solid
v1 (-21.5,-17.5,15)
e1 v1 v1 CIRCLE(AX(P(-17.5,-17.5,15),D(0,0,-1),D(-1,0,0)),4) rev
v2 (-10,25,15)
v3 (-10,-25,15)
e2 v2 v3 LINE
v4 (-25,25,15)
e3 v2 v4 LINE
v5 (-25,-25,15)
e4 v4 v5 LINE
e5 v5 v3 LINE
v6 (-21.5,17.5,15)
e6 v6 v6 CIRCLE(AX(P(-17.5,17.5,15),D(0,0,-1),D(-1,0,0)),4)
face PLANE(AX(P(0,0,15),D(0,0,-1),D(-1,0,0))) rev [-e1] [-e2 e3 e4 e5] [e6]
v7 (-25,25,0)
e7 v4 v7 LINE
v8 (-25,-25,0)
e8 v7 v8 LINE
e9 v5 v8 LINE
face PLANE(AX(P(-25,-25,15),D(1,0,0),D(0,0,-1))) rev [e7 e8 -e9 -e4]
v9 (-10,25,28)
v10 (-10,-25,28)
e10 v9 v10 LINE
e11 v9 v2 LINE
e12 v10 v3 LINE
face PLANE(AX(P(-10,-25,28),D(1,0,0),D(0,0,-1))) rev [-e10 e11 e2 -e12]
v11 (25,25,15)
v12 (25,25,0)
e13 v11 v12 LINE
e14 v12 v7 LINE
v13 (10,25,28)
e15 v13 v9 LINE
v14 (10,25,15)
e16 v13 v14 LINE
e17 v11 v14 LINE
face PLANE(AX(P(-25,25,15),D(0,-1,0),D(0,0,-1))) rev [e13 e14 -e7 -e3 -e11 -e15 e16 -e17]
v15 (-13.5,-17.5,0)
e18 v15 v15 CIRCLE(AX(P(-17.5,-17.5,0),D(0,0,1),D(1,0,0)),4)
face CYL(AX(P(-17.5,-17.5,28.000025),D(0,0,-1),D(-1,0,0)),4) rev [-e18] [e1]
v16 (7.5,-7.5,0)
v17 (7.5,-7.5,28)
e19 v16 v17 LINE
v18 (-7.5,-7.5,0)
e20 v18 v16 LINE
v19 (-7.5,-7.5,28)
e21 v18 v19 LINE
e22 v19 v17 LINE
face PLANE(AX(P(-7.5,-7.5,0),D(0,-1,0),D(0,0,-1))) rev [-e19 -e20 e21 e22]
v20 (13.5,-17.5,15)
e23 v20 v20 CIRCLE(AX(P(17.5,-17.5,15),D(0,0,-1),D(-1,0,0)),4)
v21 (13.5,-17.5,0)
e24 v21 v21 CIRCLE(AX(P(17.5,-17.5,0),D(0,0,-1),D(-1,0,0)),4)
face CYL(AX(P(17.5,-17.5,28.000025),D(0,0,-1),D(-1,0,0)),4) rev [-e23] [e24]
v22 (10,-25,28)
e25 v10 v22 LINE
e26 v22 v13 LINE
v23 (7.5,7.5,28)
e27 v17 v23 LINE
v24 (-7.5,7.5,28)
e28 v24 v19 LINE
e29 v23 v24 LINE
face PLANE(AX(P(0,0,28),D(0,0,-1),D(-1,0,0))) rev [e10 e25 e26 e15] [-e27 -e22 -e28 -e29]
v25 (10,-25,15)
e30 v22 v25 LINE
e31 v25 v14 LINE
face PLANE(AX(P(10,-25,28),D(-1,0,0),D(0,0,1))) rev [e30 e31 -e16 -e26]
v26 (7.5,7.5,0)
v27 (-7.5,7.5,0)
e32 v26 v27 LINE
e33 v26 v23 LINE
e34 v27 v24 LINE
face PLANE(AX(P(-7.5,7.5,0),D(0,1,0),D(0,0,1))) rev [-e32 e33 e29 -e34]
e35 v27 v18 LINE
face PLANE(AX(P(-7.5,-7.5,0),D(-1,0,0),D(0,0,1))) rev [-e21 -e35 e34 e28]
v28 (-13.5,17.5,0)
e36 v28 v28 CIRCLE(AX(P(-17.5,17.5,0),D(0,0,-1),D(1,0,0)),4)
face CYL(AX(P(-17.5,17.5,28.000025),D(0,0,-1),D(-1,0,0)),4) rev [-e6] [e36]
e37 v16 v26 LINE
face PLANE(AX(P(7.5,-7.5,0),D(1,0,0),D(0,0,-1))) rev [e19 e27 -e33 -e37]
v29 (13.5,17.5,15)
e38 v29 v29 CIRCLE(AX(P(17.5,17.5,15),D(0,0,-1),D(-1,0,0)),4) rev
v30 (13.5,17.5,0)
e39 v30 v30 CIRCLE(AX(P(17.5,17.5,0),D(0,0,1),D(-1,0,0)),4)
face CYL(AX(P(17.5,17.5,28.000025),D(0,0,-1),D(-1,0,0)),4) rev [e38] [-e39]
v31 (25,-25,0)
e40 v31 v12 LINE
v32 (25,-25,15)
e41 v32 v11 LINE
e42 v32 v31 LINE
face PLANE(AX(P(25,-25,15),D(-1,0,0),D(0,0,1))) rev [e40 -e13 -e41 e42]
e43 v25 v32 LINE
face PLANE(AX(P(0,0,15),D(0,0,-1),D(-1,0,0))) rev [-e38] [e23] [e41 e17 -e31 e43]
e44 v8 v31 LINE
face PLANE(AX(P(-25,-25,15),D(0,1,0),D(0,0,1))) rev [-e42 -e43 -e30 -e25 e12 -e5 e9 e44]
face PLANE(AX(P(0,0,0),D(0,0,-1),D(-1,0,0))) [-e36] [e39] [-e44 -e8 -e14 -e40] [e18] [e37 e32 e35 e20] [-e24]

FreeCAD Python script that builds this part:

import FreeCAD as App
import Part
import Sketcher
from FreeCAD import Vector

doc = App.newDocument("Part")
params = doc.addObject("Spreadsheet::Sheet", "Params")
for row, (alias, value) in enumerate([
    ("sketch1_width", "50 mm"),
    ("pad1_length", "15 mm"),
    ("sketch2_width", "20 mm"),
    ("sketch2_height", "50 mm"),
    ("pad2_length", "13 mm"),
    ("sketch3_width", "15 mm"),
    ("sketch4_diameter", "8 mm"),
    ("sketch5_diameter", "8 mm"),
], start=1):
    params.set(f"A{row}", alias)
    params.set(f"B{row}", "=" + value)
    params.setAlias(f"B{row}", alias)

body = doc.addObject("PartDesign::Body", "Body")

sketch1 = body.newObject("Sketcher::SketchObject", "Sketch")
sketch1.AttachmentSupport = (doc.getObject("XY_Plane"), [""])
sketch1.MapMode = "FlatFace"
sketch1.addGeometry(Part.LineSegment(Vector(-25, 25, 0), Vector(-25, -25, 0)), False)
sketch1.addGeometry(Part.LineSegment(Vector(-25, -25, 0), Vector(25, -25, 0)), False)
sketch1.addGeometry(Part.LineSegment(Vector(25, -25, 0), Vector(25, 25, 0)), False)
sketch1.addGeometry(Part.LineSegment(Vector(25, 25, 0), Vector(-25, 25, 0)), False)
sketch1.addConstraint(Sketcher.Constraint("Coincident", 0, 2, 1, 1))
sketch1.addConstraint(Sketcher.Constraint("Coincident", 1, 2, 2, 1))
sketch1.addConstraint(Sketcher.Constraint("Coincident", 2, 2, 3, 1))
sketch1.addConstraint(Sketcher.Constraint("Coincident", 3, 2, 0, 1))
sketch1.addConstraint(Sketcher.Constraint("Vertical", 0))
sketch1.addConstraint(Sketcher.Constraint("Horizontal", 1))
sketch1.addConstraint(Sketcher.Constraint("Vertical", 2))
sketch1.addConstraint(Sketcher.Constraint("Horizontal", 3))
sketch1.addConstraint(Sketcher.Constraint("Symmetric", 0, 2, 2, 2, -1, 1))
sketch1.addConstraint(Sketcher.Constraint("Equal", 3, 0))
sketch1.addConstraint(Sketcher.Constraint("DistanceX", 1, 1, 1, 2, 50.0))
sketch1.setExpression("Constraints[10]", "Params.sketch1_width")
pad1 = body.newObject("PartDesign::Pad", "Pad")
pad1.Profile = sketch1
pad1.setExpression("Length", "Params.pad1_length")

sketch2 = body.newObject("Sketcher::SketchObject", "Sketch001")
sketch2.AttachmentSupport = (doc.getObject("XY_Plane"), [""])
sketch2.MapMode = "FlatFace"
sketch2.AttachmentOffset = App.Placement(Vector(0, 0, 15), App.Rotation())
sketch2.addGeometry(Part.LineSegment(Vector(-10, 25, 0), Vector(-10, -25, 0)), False)
sketch2.addGeometry(Part.LineSegment(Vector(-10, -25, 0), Vector(10, -25, 0)), False)
sketch2.addGeometry(Part.LineSegment(Vector(10, -25, 0), Vector(10, 25, 0)), False)
sketch2.addGeometry(Part.LineSegment(Vector(10, 25, 0), Vector(-10, 25, 0)), False)
sketch2.addConstraint(Sketcher.Constraint("Coincident", 0, 2, 1, 1))
sketch2.addConstraint(Sketcher.Constraint("Coincident", 1, 2, 2, 1))
sketch2.addConstraint(Sketcher.Constraint("Coincident", 2, 2, 3, 1))
sketch2.addConstraint(Sketcher.Constraint("Coincident", 3, 2, 0, 1))
sketch2.addConstraint(Sketcher.Constraint("Vertical", 0))
sketch2.addConstraint(Sketcher.Constraint("Horizontal", 1))
sketch2.addConstraint(Sketcher.Constraint("Vertical", 2))
sketch2.addConstraint(Sketcher.Constraint("Horizontal", 3))
sketch2.addConstraint(Sketcher.Constraint("Symmetric", 0, 2, 2, 2, -1, 1))
sketch2.addConstraint(Sketcher.Constraint("DistanceX", 1, 1, 1, 2, 20.0))
sketch2.addConstraint(Sketcher.Constraint("DistanceY", 0, 2, 0, 1, 50.0))
sketch2.setExpression("Constraints[9]", "Params.sketch2_width")
sketch2.setExpression("Constraints[10]", "Params.sketch2_height")
pad2 = body.newObject("PartDesign::Pad", "Pad001")
pad2.Profile = sketch2
pad2.setExpression("Length", "Params.pad2_length")

sketch3 = body.newObject("Sketcher::SketchObject", "Sketch002")
sketch3.AttachmentSupport = (doc.getObject("XY_Plane"), [""])
sketch3.MapMode = "FlatFace"
sketch3.AttachmentOffset = App.Placement(Vector(0, 0, 28), App.Rotation())
sketch3.addGeometry(Part.LineSegment(Vector(-7.5, 7.5, 0), Vector(-7.5, -7.5, 0)), False)
sketch3.addGeometry(Part.LineSegment(Vector(-7.5, -7.5, 0), Vector(7.5, -7.5, 0)), False)
sketch3.addGeometry(Part.LineSegment(Vector(7.5, -7.5, 0), Vector(7.5, 7.5, 0)), False)
sketch3.addGeometry(Part.LineSegment(Vector(7.5, 7.5, 0), Vector(-7.5, 7.5, 0)), False)
sketch3.addConstraint(Sketcher.Constraint("Coincident", 0, 2, 1, 1))
sketch3.addConstraint(Sketcher.Constraint("Coincident", 1, 2, 2, 1))
sketch3.addConstraint(Sketcher.Constraint("Coincident", 2, 2, 3, 1))
sketch3.addConstraint(Sketcher.Constraint("Coincident", 3, 2, 0, 1))
sketch3.addConstraint(Sketcher.Constraint("Vertical", 0))
sketch3.addConstraint(Sketcher.Constraint("Horizontal", 1))
sketch3.addConstraint(Sketcher.Constraint("Vertical", 2))
sketch3.addConstraint(Sketcher.Constraint("Horizontal", 3))
sketch3.addConstraint(Sketcher.Constraint("Symmetric", 0, 2, 2, 2, -1, 1))
sketch3.addConstraint(Sketcher.Constraint("Equal", 3, 0))
sketch3.addConstraint(Sketcher.Constraint("DistanceX", 1, 1, 1, 2, 15.0))
sketch3.setExpression("Constraints[10]", "Params.sketch3_width")
pocket1 = body.newObject("PartDesign::Pocket", "Pocket")
pocket1.Profile = sketch3
pocket1.Type = "ThroughAll"

sketch4 = body.newObject("Sketcher::SketchObject", "Sketch003")
sketch4.AttachmentSupport = (doc.getObject("XY_Plane"), [""])
sketch4.MapMode = "FlatFace"
sketch4.addGeometry(Part.Circle(Vector(17.5, -17.5, 0), Vector(0, 0, 1), 4), False)
sketch4.addConstraint(Sketcher.Constraint("Diameter", 0, 8.0))
sketch4.addConstraint(Sketcher.Constraint("DistanceX", -1, 1, 0, 3, 17.5))
sketch4.addConstraint(Sketcher.Constraint("DistanceY", 0, 3, -1, 1, 17.5))
sketch4.setExpression("Constraints[0]", "Params.sketch4_diameter")
pocket2 = body.newObject("PartDesign::Pocket", "Pocket001")
pocket2.Profile = sketch4
pocket2.Type = "ThroughAll"
pocket2.Reversed = True
doc.recompute()

mirrored = body.newObject("PartDesign::Mirrored", "Mirrored")
mirrored.Originals = [pocket2]
mirrored.MirrorPlane = (doc.getObject("XZ_Plane"), [""])
body.Tip = mirrored
doc.recompute()

mirrored2 = body.newObject("PartDesign::Mirrored", "Mirrored001")
mirrored2.Originals = [pocket2]
mirrored2.MirrorPlane = (doc.getObject("YZ_Plane"), [""])
body.Tip = mirrored2

sketch5 = body.newObject("Sketcher::SketchObject", "Sketch004")
sketch5.AttachmentSupport = (doc.getObject("XY_Plane"), [""])
sketch5.MapMode = "FlatFace"
sketch5.addGeometry(Part.Circle(Vector(-17.5, 17.5, 0), Vector(0, 0, 1), 4), False)
sketch5.addConstraint(Sketcher.Constraint("Diameter", 0, 8.0))
sketch5.addConstraint(Sketcher.Constraint("DistanceX", 0, 3, -1, 1, 17.5))
sketch5.addConstraint(Sketcher.Constraint("DistanceY", -1, 1, 0, 3, 17.5))
sketch5.setExpression("Constraints[0]", "Params.sketch5_diameter")
pocket3 = body.newObject("PartDesign::Pocket", "Pocket002")
pocket3.Profile = sketch5
pocket3.Type = "ThroughAll"
pocket3.Reversed = True

doc.recompute()
